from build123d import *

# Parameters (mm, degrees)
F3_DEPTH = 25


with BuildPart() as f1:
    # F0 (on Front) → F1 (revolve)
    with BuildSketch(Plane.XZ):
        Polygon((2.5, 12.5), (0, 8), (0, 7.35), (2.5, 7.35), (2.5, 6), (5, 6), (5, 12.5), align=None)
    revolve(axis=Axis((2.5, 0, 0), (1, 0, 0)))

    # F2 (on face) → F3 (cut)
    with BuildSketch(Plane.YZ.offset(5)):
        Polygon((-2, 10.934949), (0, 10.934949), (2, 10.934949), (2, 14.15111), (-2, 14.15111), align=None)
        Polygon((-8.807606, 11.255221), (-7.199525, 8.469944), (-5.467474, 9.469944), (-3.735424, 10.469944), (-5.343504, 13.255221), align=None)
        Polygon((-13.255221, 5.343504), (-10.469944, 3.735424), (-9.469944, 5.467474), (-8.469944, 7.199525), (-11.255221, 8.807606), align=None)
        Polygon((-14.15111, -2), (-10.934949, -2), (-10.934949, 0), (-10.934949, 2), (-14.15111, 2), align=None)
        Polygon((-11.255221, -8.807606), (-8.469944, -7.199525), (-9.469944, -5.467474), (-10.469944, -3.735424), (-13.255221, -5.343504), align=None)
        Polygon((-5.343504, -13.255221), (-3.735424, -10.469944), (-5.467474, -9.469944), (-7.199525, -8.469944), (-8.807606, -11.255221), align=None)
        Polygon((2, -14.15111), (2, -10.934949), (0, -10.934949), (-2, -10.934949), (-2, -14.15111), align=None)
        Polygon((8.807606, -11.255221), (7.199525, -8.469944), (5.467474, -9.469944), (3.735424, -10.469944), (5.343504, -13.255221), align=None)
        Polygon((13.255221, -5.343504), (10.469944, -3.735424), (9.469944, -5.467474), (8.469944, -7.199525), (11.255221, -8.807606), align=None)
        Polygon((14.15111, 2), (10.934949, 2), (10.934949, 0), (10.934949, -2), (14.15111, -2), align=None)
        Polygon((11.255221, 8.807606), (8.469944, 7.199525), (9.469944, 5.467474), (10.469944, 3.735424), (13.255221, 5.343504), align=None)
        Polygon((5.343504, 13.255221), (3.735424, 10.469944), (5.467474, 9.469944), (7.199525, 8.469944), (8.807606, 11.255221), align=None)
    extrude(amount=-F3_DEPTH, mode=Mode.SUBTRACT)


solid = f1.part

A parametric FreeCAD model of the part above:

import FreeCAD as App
import Part
import Sketcher

V = App.Vector
Q = App.Units.Quantity

doc = App.newDocument("Part")
body = doc.addObject("PartDesign::Body", "Body")

# Sketch on XZ plane
sketch1 = body.newObject("Sketcher::SketchObject", "Sketch")
sketch1.AttachmentSupport = (doc.getObject("XZ_Plane"), [""])
sketch1.MapMode = "FlatFace"
sketch1.addGeometry(Part.LineSegment(V(2.5, 12.5, 0), V(0, 8, 0)), False)
sketch1.addGeometry(Part.LineSegment(V(0, 8, 0), V(0, 7.3, 0)), False)
sketch1.addGeometry(Part.LineSegment(V(0, 7.3, 0), V(2.5, 7.3, 0)), False)
sketch1.addGeometry(Part.LineSegment(V(2.5, 7.3, 0), V(2.5, 6, 0)), False)
sketch1.addGeometry(Part.LineSegment(V(2.5, 6, 0), V(5, 6, 0)), False)
sketch1.addGeometry(Part.LineSegment(V(5, 6, 0), V(5, 12.5, 0)), False)
sketch1.addGeometry(Part.LineSegment(V(5, 12.5, 0), V(2.5, 12.5, 0)), False)
sketch1.addConstraint(Sketcher.Constraint("Coincident", 0, 2, 1, 1))
sketch1.addConstraint(Sketcher.Constraint("Coincident", 1, 2, 2, 1))
sketch1.addConstraint(Sketcher.Constraint("Coincident", 2, 2, 3, 1))
sketch1.addConstraint(Sketcher.Constraint("Coincident", 3, 2, 4, 1))
sketch1.addConstraint(Sketcher.Constraint("Coincident", 4, 2, 5, 1))
sketch1.addConstraint(Sketcher.Constraint("Coincident", 5, 2, 6, 1))
sketch1.addConstraint(Sketcher.Constraint("Coincident", 6, 2, 0, 1))
sketch1.addConstraint(Sketcher.Constraint("Vertical", 1))
sketch1.addConstraint(Sketcher.Constraint("Horizontal", 2))
sketch1.addConstraint(Sketcher.Constraint("Vertical", 3))
sketch1.addConstraint(Sketcher.Constraint("Horizontal", 4))
sketch1.addConstraint(Sketcher.Constraint("Vertical", 5))
sketch1.addConstraint(Sketcher.Constraint("Horizontal", 6))
sketch1.addConstraint(Sketcher.Constraint("PointOnObject", 0, 2, -2))
sketch1.addConstraint(Sketcher.Constraint("Vertical", 3, 2, 6, 2))
sketch1.addConstraint(Sketcher.Constraint("Equal", 2, 4))
sketch1.addConstraint(Sketcher.Constraint("DistanceX", 2, 1, 2, 2, Q("2.5 mm")))
sketch1.addConstraint(Sketcher.Constraint("DistanceY", 5, 1, 5, 2, Q("6.5 mm")))
sketch1.addConstraint(Sketcher.Constraint("DistanceY", -1, 1, 0, 2, Q("8 mm")))
sketch1.addConstraint(Sketcher.Constraint("DistanceY", -1, 1, 3, 2, Q("6 mm")))
sketch1.addConstraint(Sketcher.Constraint("DistanceY", 1, 2, 1, 1, Q("0.65 mm")))
revolution = body.newObject("PartDesign::Revolution", "Revolution")
revolution.Profile = sketch1
revolution.ReferenceAxis = (sketch1, ["H_Axis"])
revolution.Angle = 360

# Sketch on YZ plane
sketch2 = body.newObject("Sketcher::SketchObject", "Sketch001")
sketch2.AttachmentSupport = (doc.getObject("YZ_Plane"), [""])
sketch2.MapMode = "FlatFace"
sketch2.AttachmentOffset = App.Placement(V(0, 0, 5), App.Rotation())
sketch2.addGeometry(Part.LineSegment(V(-2, 10.9, 0), V(2, 10.9, 0)), False)
sketch2.addGeometry(Part.LineSegment(V(2, 10.9, 0), V(2, 14.2, 0)), False)
sketch2.addGeometry(Part.LineSegment(V(2, 14.2, 0), V(-2, 14.2, 0)), False)
sketch2.addGeometry(Part.LineSegment(V(-2, 14.2, 0), V(-2, 10.9, 0)), False)
sketch2.addGeometry(Part.LineSegment(V(-8.8, 11.3, 0), V(-7.2, 8.5, 0)), False)
sketch2.addGeometry(Part.LineSegment(V(-7.2, 8.5, 0), V(-5.5, 9.5, 0)), False)
sketch2.addGeometry(Part.LineSegment(V(-5.5, 9.5, 0), V(-3.7, 10.5, 0)), False)
sketch2.addGeometry(Part.LineSegment(V(-3.7, 10.5, 0), V(-5.3, 13.3, 0)), False)
sketch2.addGeometry(Part.LineSegment(V(-5.3, 13.3, 0), V(-8.8, 11.3, 0)), False)
sketch2.addGeometry(Part.LineSegment(V(-13.3, 5.3, 0), V(-10.5, 3.7, 0)), False)
sketch2.addGeometry(Part.LineSegment(V(-10.5, 3.7, 0), V(-9.5, 5.5, 0)), False)
sketch2.addGeometry(Part.LineSegment(V(-9.5, 5.5, 0), V(-8.5, 7.2, 0)), False)
sketch2.addGeometry(Part.LineSegment(V(-8.5, 7.2, 0), V(-11.3, 8.8, 0)), False)
sketch2.addGeometry(Part.LineSegment(V(-11.3, 8.8, 0), V(-13.3, 5.3, 0)), False)
sketch2.addGeometry(Part.LineSegment(V(-14.2, -2, 0), V(-10.9, -2, 0)), False)
sketch2.addGeometry(Part.LineSegment(V(-10.9, -2, 0), V(-10.9, 2, 0)), False)
sketch2.addGeometry(Part.LineSegment(V(-10.9, 2, 0), V(-14.2, 2, 0)), False)
sketch2.addGeometry(Part.LineSegment(V(-14.2, 2, 0), V(-14.2, -2, 0)), False)
sketch2.addGeometry(Part.LineSegment(V(-11.3, -8.8, 0), V(-8.5, -7.2, 0)), False)
sketch2.addGeometry(Part.LineSegment(V(-8.5, -7.2, 0), V(-9.5, -5.5, 0)), False)
sketch2.addGeometry(Part.LineSegment(V(-9.5, -5.5, 0), V(-10.5, -3.7, 0)), False)
sketch2.addGeometry(Part.LineSegment(V(-10.5, -3.7, 0), V(-13.3, -5.3, 0)), False)
sketch2.addGeometry(Part.LineSegment(V(-13.3, -5.3, 0), V(-11.3, -8.8, 0)), False)
sketch2.addGeometry(Part.LineSegment(V(-5.3, -13.3, 0), V(-3.7, -10.5, 0)), False)
sketch2.addGeometry(Part.LineSegment(V(-3.7, -10.5, 0), V(-5.5, -9.5, 0)), False)
sketch2.addGeometry(Part.LineSegment(V(-5.5, -9.5, 0), V(-7.2, -8.5, 0)), False)
sketch2.addGeometry(Part.LineSegment(V(-7.2, -8.5, 0), V(-8.8, -11.3, 0)), False)
sketch2.addGeometry(Part.LineSegment(V(-8.8, -11.3, 0), V(-5.3, -13.3, 0)), False)
sketch2.addGeometry(Part.LineSegment(V(2, -14.2, 0), V(2, -10.9, 0)), False)
sketch2.addGeometry(Part.LineSegment(V(2, -10.9, 0), V(-2, -10.9, 0)), False)
sketch2.addGeometry(Part.LineSegment(V(-2, -10.9, 0), V(-2, -14.2, 0)), False)
sketch2.addGeometry(Part.LineSegment(V(-2, -14.2, 0), V(2, -14.2, 0)), False)
sketch2.addGeometry(Part.LineSegment(V(8.8, -11.3, 0), V(7.2, -8.5, 0)), False)
sketch2.addGeometry(Part.LineSegment(V(7.2, -8.5, 0), V(5.5, -9.5, 0)), False)
sketch2.addGeometry(Part.LineSegment(V(5.5, -9.5, 0), V(3.7, -10.5, 0)), False)
sketch2.addGeometry(Part.LineSegment(V(3.7, -10.5, 0), V(5.3, -13.3, 0)), False)
sketch2.addGeometry(Part.LineSegment(V(5.3, -13.3, 0), V(8.8, -11.3, 0)), False)
sketch2.addGeometry(Part.LineSegment(V(13.3, -5.3, 0), V(10.5, -3.7, 0)), False)
sketch2.addGeometry(Part.LineSegment(V(10.5, -3.7, 0), V(9.5, -5.5, 0)), False)
sketch2.addGeometry(Part.LineSegment(V(9.5, -5.5, 0), V(8.5, -7.2, 0)), False)
sketch2.addGeometry(Part.LineSegment(V(8.5, -7.2, 0), V(11.3, -8.8, 0)), False)
sketch2.addGeometry(Part.LineSegment(V(11.3, -8.8, 0), V(13.3, -5.3, 0)), False)
sketch2.addGeometry(Part.LineSegment(V(14.2, 2, 0), V(10.9, 2, 0)), False)
sketch2.addGeometry(Part.LineSegment(V(10.9, 2, 0), V(10.9, -2, 0)), False)
sketch2.addGeometry(Part.LineSegment(V(10.9, -2, 0), V(14.2, -2, 0)), False)
sketch2.addGeometry(Part.LineSegment(V(14.2, -2, 0), V(14.2, 2, 0)), False)
sketch2.addGeometry(Part.LineSegment(V(11.3, 8.8, 0), V(8.5, 7.2, 0)), False)
sketch2.addGeometry(Part.LineSegment(V(8.5, 7.2, 0), V(9.5, 5.5, 0)), False)
sketch2.addGeometry(Part.LineSegment(V(9.5, 5.5, 0), V(10.5, 3.7, 0)), False)
sketch2.addGeometry(Part.LineSegment(V(10.5, 3.7, 0), V(13.3, 5.3, 0)), False)
sketch2.addGeometry(Part.LineSegment(V(13.3, 5.3, 0), V(11.3, 8.8, 0)), False)
sketch2.addGeometry(Part.LineSegment(V(5.3, 13.3, 0), V(3.7, 10.5, 0)), False)
sketch2.addGeometry(Part.LineSegment(V(3.7, 10.5, 0), V(5.5, 9.5, 0)), False)
sketch2.addGeometry(Part.LineSegment(V(5.5, 9.5, 0), V(7.2, 8.5, 0)), False)
sketch2.addGeometry(Part.LineSegment(V(7.2, 8.5, 0), V(8.8, 11.3, 0)), False)
sketch2.addGeometry(Part.LineSegment(V(8.8, 11.3, 0), V(5.3, 13.3, 0)), False)
sketch2.addConstraint(Sketcher.Constraint("Coincident", 0, 2, 1, 1))
sketch2.addConstraint(Sketcher.Constraint("Coincident", 1, 2, 2, 1))
sketch2.addConstraint(Sketcher.Constraint("Coincident", 2, 2, 3, 1))
sketch2.addConstraint(Sketcher.Constraint("Coincident", 3, 2, 0, 1))
sketch2.addConstraint(Sketcher.Constraint("Coincident", 4, 2, 5, 1))
sketch2.addConstraint(Sketcher.Constraint("Coincident", 5, 2, 6, 1))
sketch2.addConstraint(Sketcher.Constraint("Coincident", 6, 2, 7, 1))
sketch2.addConstraint(Sketcher.Constraint("Coincident", 7, 2, 8, 1))
sketch2.addConstraint(Sketcher.Constraint("Coincident", 8, 2, 4, 1))
sketch2.addConstraint(Sketcher.Constraint("Coincident", 9, 2, 10, 1))
sketch2.addConstraint(Sketcher.Constraint("Coincident", 10, 2, 11, 1))
sketch2.addConstraint(Sketcher.Constraint("Coincident", 11, 2, 12, 1))
sketch2.addConstraint(Sketcher.Constraint("Coincident", 12, 2, 13, 1))
sketch2.addConstraint(Sketcher.Constraint("Coincident", 13, 2, 9, 1))
sketch2.addConstraint(Sketcher.Constraint("Coincident", 14, 2, 15, 1))
sketch2.addConstraint(Sketcher.Constraint("Coincident", 15, 2, 16, 1))
sketch2.addConstraint(Sketcher.Constraint("Coincident", 16, 2, 17, 1))
sketch2.addConstraint(Sketcher.Constraint("Coincident", 17, 2, 14, 1))
sketch2.addConstraint(Sketcher.Constraint("Coincident", 18, 2, 19, 1))
sketch2.addConstraint(Sketcher.Constraint("Coincident", 19, 2, 20, 1))
sketch2.addConstraint(Sketcher.Constraint("Coincident", 20, 2, 21, 1))
sketch2.addConstraint(Sketcher.Constraint("Coincident", 21, 2, 22, 1))
sketch2.addConstraint(Sketcher.Constraint("Coincident", 22, 2, 18, 1))
sketch2.addConstraint(Sketcher.Constraint("Coincident", 23, 2, 24, 1))
sketch2.addConstraint(Sketcher.Constraint("Coincident", 24, 2, 25, 1))
sketch2.addConstraint(Sketcher.Constraint("Coincident", 25, 2, 26, 1))
sketch2.addConstraint(Sketcher.Constraint("Coincident", 26, 2, 27, 1))
sketch2.addConstraint(Sketcher.Constraint("Coincident", 27, 2, 23, 1))
sketch2.addConstraint(Sketcher.Constraint("Coincident", 28, 2, 29, 1))
sketch2.addConstraint(Sketcher.Constraint("Coincident", 29, 2, 30, 1))
sketch2.addConstraint(Sketcher.Constraint("Coincident", 30, 2, 31, 1))
sketch2.addConstraint(Sketcher.Constraint("Coincident", 31, 2, 28, 1))
sketch2.addConstraint(Sketcher.Constraint("Coincident", 32, 2, 33, 1))
sketch2.addConstraint(Sketcher.Constraint("Coincident", 33, 2, 34, 1))
sketch2.addConstraint(Sketcher.Constraint("Coincident", 34, 2, 35, 1))
sketch2.addConstraint(Sketcher.Constraint("Coincident", 35, 2, 36, 1))
sketch2.addConstraint(Sketcher.Constraint("Coincident", 36, 2, 32, 1))
sketch2.addConstraint(Sketcher.Constraint("Coincident", 37, 2, 38, 1))
sketch2.addConstraint(Sketcher.Constraint("Coincident", 38, 2, 39, 1))
sketch2.addConstraint(Sketcher.Constraint("Coincident", 39, 2, 40, 1))
sketch2.addConstraint(Sketcher.Constraint("Coincident", 40, 2, 41, 1))
sketch2.addConstraint(Sketcher.Constraint("Coincident", 41, 2, 37, 1))
sketch2.addConstraint(Sketcher.Constraint("Coincident", 42, 2, 43, 1))
sketch2.addConstraint(Sketcher.Constraint("Coincident", 43, 2, 44, 1))
sketch2.addConstraint(Sketcher.Constraint("Coincident", 44, 2, 45, 1))
sketch2.addConstraint(Sketcher.Constraint("Coincident", 45, 2, 42, 1))
sketch2.addConstraint(Sketcher.Constraint("Coincident", 46, 2, 47, 1))
sketch2.addConstraint(Sketcher.Constraint("Coincident", 47, 2, 48, 1))
sketch2.addConstraint(Sketcher.Constraint("Coincident", 48, 2, 49, 1))
sketch2.addConstraint(Sketcher.Constraint("Coincident", 49, 2, 50, 1))
sketch2.addConstraint(Sketcher.Constraint("Coincident", 50, 2, 46, 1))
sketch2.addConstraint(Sketcher.Constraint("Coincident", 51, 2, 52, 1))
sketch2.addConstraint(Sketcher.Constraint("Coincident", 52, 2, 53, 1))
sketch2.addConstraint(Sketcher.Constraint("Coincident", 53, 2, 54, 1))
sketch2.addConstraint(Sketcher.Constraint("Coincident", 54, 2, 55, 1))
sketch2.addConstraint(Sketcher.Constraint("Coincident", 55, 2, 51, 1))
sketch2.addConstraint(Sketcher.Constraint("Horizontal", 0))
sketch2.addConstraint(Sketcher.Constraint("Vertical", 1))
sketch2.addConstraint(Sketcher.Constraint("Horizontal", 2))
sketch2.addConstraint(Sketcher.Constraint("Vertical", 3))
sketch2.addConstraint(Sketcher.Constraint("Horizontal", 14))
sketch2.addConstraint(Sketcher.Constraint("Vertical", 15))
sketch2.addConstraint(Sketcher.Constraint("Horizontal", 16))
sketch2.addConstraint(Sketcher.Constraint("Vertical", 17))
sketch2.addConstraint(Sketcher.Constraint("Vertical", 28))
sketch2.addConstraint(Sketcher.Constraint("Horizontal", 29))
sketch2.addConstraint(Sketcher.Constraint("Vertical", 30))
sketch2.addConstraint(Sketcher.Constraint("Horizontal", 31))
sketch2.addConstraint(Sketcher.Constraint("Horizontal", 42))
sketch2.addConstraint(Sketcher.Constraint("Vertical", 43))
sketch2.addConstraint(Sketcher.Constraint("Horizontal", 44))
sketch2.addConstraint(Sketcher.Constraint("Vertical", 45))
sketch2.addConstraint(Sketcher.Constraint("Symmetric", 3, 2, 28, 2, -1, 1))
sketch2.addConstraint(Sketcher.Constraint("Symmetric", 1, 2, 30, 2, -1, 1))
sketch2.addConstraint(Sketcher.Constraint("Symmetric", 4, 2, 32, 2, -1, 1))
sketch2.addConstraint(Sketcher.Constraint("Symmetric", 5, 2, 33, 2, -1, 1))
sketch2.addConstraint(Sketcher.Constraint("Symmetric", 6, 2, 34, 2, -1, 1))
sketch2.addConstraint(Sketcher.Constraint("Symmetric", 7, 2, 35, 2, -1, 1))
sketch2.addConstraint(Sketcher.Constraint("Symmetric", 8, 2, 36, 2, -1, 1))
sketch2.addConstraint(Sketcher.Constraint("Symmetric", 9, 2, 37, 2, -1, 1))
sketch2.addConstraint(Sketcher.Constraint("Symmetric", 10, 2, 38, 2, -1, 1))
sketch2.addConstraint(Sketcher.Constraint("Symmetric", 11, 2, 39, 2, -1, 1))
sketch2.addConstraint(Sketcher.Constraint("Symmetric", 12, 2, 40, 2, -1, 1))
sketch2.addConstraint(Sketcher.Constraint("Symmetric", 13, 2, 41, 2, -1, 1))
sketch2.addConstraint(Sketcher.Constraint("Symmetric", 14, 2, 42, 2, -1, 1))
sketch2.addConstraint(Sketcher.Constraint("Symmetric", 16, 2, 44, 2, -1, 1))
sketch2.addConstraint(Sketcher.Constraint("Symmetric", 18, 2, 46, 2, -1, 1))
sketch2.addConstraint(Sketcher.Constraint("Symmetric", 19, 2, 47, 2, -1, 1))
sketch2.addConstraint(Sketcher.Constraint("Symmetric", 20, 2, 48, 2, -1, 1))
sketch2.addConstraint(Sketcher.Constraint("Symmetric", 21, 2, 49, 2, -1, 1))
sketch2.addConstraint(Sketcher.Constraint("Symmetric", 22, 2, 50, 2, -1, 1))
sketch2.addConstraint(Sketcher.Constraint("Symmetric", 23, 2, 51, 2, -1, 1))
sketch2.addConstraint(Sketcher.Constraint("Symmetric", 24, 2, 52, 2, -1, 1))
sketch2.addConstraint(Sketcher.Constraint("Symmetric", 25, 2, 53, 2, -1, 1))
sketch2.addConstraint(Sketcher.Constraint("Symmetric", 26, 2, 54, 2, -1, 1))
sketch2.addConstraint(Sketcher.Constraint("Symmetric", 27, 2, 55, 2, -1, 1))
sketch2.addConstraint(Sketcher.Constraint("Symmetric", 25, 2, 32, 2, -2))
sketch2.addConstraint(Sketcher.Constraint("Symmetric", 24, 2, 33, 2, -2))
sketch2.addConstraint(Sketcher.Constraint("Symmetric", 23, 2, 34, 2, -2))
sketch2.addConstraint(Sketcher.Constraint("Symmetric", 27, 2, 35, 2, -2))
sketch2.addConstraint(Sketcher.Constraint("Symmetric", 26, 2, 36, 2, -2))
sketch2.addConstraint(Sketcher.Constraint("Symmetric", 20, 2, 37, 2, -2))
sketch2.addConstraint(Sketcher.Constraint("Symmetric", 19, 2, 38, 2, -2))
sketch2.addConstraint(Sketcher.Constraint("Symmetric", 18, 2, 39, 2, -2))
sketch2.addConstraint(Sketcher.Constraint("Symmetric", 22, 2, 40, 2, -2))
sketch2.addConstraint(Sketcher.Constraint("Symmetric", 21, 2, 41, 2, -2))
sketch2.addConstraint(Sketcher.Constraint("Perpendicular", 4, 5))
sketch2.addConstraint(Sketcher.Constraint("Parallel", 5, 6))
sketch2.addConstraint(Sketcher.Constraint("Perpendicular", 6, 7))
sketch2.addConstraint(Sketcher.Constraint("Perpendicular", 7, 8))
sketch2.addConstraint(Sketcher.Constraint("Perpendicular", 9, 10))
sketch2.addConstraint(Sketcher.Constraint("Parallel", 10, 11))
sketch2.addConstraint(Sketcher.Constraint("Perpendicular", 11, 12))
sketch2.addConstraint(Sketcher.Constraint("Perpendicular", 12, 13))
sketch2.addConstraint(Sketcher.Constraint("Parallel", 8, 18))
sketch2.addConstraint(Sketcher.Constraint("Horizontal", 16, 2, 42, 2))
sketch2.addConstraint(Sketcher.Constraint("Vertical", 1, 2, 28, 2))
sketch2.addConstraint(Sketcher.Constraint("Equal", 44, 1))
sketch2.addConstraint(Sketcher.Constraint("Equal", 31, 15))
sketch2.addConstraint(Sketcher.Constraint("Equal", 5, 6))
sketch2.addConstraint(Sketcher.Constraint("Equal", 7, 9))
sketch2.addConstraint(Sketcher.Constraint("Equal", 6, 10))
sketch2.addConstraint(Sketcher.Constraint("Equal", 10, 11))
sketch2.addConstraint(Sketcher.Constraint("DistanceX", 0, 1, 0, 2, Q("4 mm")))
sketch2.addConstraint(Sketcher.Constraint("Angle", 4, Q("-59.999991 deg")))
sketch2.addConstraint(Sketcher.Constraint("Distance", 5, Q("2 mm")))
sketch2.addConstraint(Sketcher.Constraint("DistanceX", 14, 1, 14, 2, Q("3.216161 mm")))
sketch2.addConstraint(Sketcher.Constraint("Distance", 4, Q("3.216161 mm")))
sketch2.addConstraint(Sketcher.Constraint("DistanceY", -1, 1, 0, 2, Q("10.934949 mm")))
sketch2.addConstraint(Sketcher.Constraint("DistanceY", -1, 1, 7, 2, Q("13.255221 mm")))
sketch2.addConstraint(Sketcher.Constraint("DistanceX", 12, 2, -1, 1, Q("11.255221 mm")))
sketch2.addConstraint(Sketcher.Constraint("DistanceX", 14, 2, -1, 1, Q("10.934949 mm")))
sketch2.addConstraint(Sketcher.Constraint("DistanceX", 9, 2, 4, 2, Q("3.270419 mm")))
sketch2.addConstraint(Sketcher.Constraint("DistanceY", 9, 2, 4, 2, Q("4.73452 mm")))
pocket1 = body.newObject("PartDesign::Pocket", "Pocket")
pocket1.Profile = sketch2
pocket1.Length = 25

doc.recompute()
